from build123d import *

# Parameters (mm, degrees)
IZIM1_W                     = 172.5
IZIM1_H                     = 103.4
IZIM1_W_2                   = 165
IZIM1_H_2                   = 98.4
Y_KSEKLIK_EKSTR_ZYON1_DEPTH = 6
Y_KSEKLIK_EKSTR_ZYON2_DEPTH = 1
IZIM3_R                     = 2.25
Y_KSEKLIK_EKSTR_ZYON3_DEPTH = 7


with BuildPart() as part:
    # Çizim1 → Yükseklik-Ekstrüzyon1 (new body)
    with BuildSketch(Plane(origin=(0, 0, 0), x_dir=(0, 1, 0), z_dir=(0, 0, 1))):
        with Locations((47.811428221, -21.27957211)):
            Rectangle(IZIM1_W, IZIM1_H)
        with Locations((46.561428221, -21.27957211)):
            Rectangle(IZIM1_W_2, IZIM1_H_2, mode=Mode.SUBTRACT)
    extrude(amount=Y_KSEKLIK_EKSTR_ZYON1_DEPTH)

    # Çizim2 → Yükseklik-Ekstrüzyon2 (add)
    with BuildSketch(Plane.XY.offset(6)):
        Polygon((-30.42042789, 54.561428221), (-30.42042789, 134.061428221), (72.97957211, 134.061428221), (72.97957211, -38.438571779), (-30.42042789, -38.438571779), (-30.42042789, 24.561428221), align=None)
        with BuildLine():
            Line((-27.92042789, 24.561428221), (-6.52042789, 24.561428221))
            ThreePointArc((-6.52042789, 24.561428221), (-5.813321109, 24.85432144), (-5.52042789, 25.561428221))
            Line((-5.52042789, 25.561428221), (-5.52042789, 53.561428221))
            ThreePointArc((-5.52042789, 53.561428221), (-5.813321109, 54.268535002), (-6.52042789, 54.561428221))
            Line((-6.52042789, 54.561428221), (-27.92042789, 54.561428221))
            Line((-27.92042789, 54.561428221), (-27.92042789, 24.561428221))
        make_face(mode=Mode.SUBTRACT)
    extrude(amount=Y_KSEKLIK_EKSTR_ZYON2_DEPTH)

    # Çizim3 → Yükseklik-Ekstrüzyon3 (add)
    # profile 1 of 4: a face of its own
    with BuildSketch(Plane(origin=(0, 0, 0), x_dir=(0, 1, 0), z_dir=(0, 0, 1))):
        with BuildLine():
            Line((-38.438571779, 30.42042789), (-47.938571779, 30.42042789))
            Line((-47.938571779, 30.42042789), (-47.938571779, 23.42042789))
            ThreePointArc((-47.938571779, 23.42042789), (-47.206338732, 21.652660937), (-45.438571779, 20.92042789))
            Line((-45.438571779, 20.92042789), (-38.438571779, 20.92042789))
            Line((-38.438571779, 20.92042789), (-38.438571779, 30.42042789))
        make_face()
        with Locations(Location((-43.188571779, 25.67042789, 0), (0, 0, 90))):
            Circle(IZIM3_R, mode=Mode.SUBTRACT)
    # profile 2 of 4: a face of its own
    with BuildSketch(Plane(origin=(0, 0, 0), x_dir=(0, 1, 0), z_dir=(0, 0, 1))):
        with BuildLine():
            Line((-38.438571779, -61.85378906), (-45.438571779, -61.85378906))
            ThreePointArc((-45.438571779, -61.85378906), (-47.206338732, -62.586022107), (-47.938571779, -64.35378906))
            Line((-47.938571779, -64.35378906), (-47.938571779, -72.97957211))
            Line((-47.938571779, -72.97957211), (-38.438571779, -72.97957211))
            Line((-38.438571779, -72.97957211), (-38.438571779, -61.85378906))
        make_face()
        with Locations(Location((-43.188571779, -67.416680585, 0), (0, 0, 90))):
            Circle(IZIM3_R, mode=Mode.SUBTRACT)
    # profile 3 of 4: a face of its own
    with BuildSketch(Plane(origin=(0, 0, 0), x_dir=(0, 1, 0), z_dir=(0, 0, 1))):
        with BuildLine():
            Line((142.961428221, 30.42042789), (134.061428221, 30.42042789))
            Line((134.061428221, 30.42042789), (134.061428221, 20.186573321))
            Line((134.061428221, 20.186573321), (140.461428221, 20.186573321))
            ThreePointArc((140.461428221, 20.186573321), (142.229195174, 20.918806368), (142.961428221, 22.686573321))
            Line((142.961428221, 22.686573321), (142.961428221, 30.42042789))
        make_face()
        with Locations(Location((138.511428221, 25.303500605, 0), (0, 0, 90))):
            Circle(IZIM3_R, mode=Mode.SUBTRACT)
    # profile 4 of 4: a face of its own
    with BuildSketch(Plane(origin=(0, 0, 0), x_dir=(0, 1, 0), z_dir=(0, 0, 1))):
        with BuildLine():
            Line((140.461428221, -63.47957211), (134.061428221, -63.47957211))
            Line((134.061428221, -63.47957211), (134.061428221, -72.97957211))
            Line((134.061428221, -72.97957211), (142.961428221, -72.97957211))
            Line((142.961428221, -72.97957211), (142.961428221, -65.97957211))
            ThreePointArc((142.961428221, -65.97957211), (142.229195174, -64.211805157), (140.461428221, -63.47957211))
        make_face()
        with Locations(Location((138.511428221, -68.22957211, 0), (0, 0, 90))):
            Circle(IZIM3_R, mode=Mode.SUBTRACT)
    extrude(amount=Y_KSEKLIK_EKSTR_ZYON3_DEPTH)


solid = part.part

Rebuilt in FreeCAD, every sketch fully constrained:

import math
import FreeCAD as App
import Part
import Sketcher
from FreeCAD import Vector


def add_polygon(sketch, points):
    """Adds a closed chain of lines whose ends are joined by coincident constraints."""
    first, n = sketch.GeometryCount, len(points)
    for a, b in zip(points, points[1:] + points[:1]):
        sketch.addGeometry(Part.LineSegment(App.Vector(*a, 0), App.Vector(*b, 0)), False)
    for i in range(n):
        sketch.addConstraint(Sketcher.Constraint("Coincident", first + i, 2, first + (i + 1) % n, 1))

doc = App.newDocument("Part")
body = doc.addObject("PartDesign::Body", "Body")

sketch1 = body.newObject("Sketcher::SketchObject", "Sketch")
sketch1.AttachmentSupport = (doc.getObject("XY_Plane"), [""])
sketch1.MapMode = "FlatFace"
add_polygon(sketch1, [(-30.420428, -38.438572), (72.979572, -38.438572), (72.979572, 134.061428), (-30.420428, 134.061428)])
add_polygon(sketch1, [(70.479572, 129.061428), (70.479572, -35.938572), (-27.920428, -35.938572), (-27.920428, 129.061428)])
sketch1.addConstraint([
    Sketcher.Constraint("Horizontal", 0),
    Sketcher.Constraint("Vertical", 1),
    Sketcher.Constraint("Horizontal", 2),
    Sketcher.Constraint("Vertical", 3),
    Sketcher.Constraint("Vertical", 4),
    Sketcher.Constraint("Horizontal", 5),
    Sketcher.Constraint("Vertical", 6),
    Sketcher.Constraint("Horizontal", 7),
    Sketcher.Constraint("DistanceY", 4, 2, 4, 1, 165.0),
    Sketcher.Constraint("DistanceX", 0, 1, 0, 2, 103.4),
    Sketcher.Constraint("DistanceX", 5, 2, 5, 1, 98.4),
    Sketcher.Constraint("DistanceY", 1, 1, 1, 2, 172.5),
    Sketcher.Constraint("DistanceY", 4, 2, 1, 2, 170.0),
    Sketcher.Constraint("DistanceX", 4, 2, 0, 2, 2.5),
    Sketcher.Constraint("DistanceY", 0, 2, -1, 1, 38.438572),
    Sketcher.Constraint("DistanceX", -1, 1, 0, 2, 72.979572),
])
pad1 = body.newObject("PartDesign::Pad", "Pad")
pad1.Profile = sketch1
pad1.Length = 6

sketch2 = body.newObject("Sketcher::SketchObject", "Sketch001")
sketch2.AttachmentSupport = (doc.getObject("XY_Plane"), [""])
sketch2.MapMode = "FlatFace"
sketch2.AttachmentOffset = App.Placement(Vector(0, 0, 6), App.Rotation())
add_polygon(sketch2, [(-30.420428, 134.061428), (-30.420428, -38.438572), (72.979572, -38.438572), (72.979572, 134.061428)])
sketch2.addGeometry(Part.LineSegment(Vector(-27.920428, 24.561428, 0), Vector(-27.920428, 54.561428, 0)), False)
sketch2.addGeometry(Part.LineSegment(Vector(-27.920428, 54.561428, 0), Vector(-6.520428, 54.561428, 0)), False)
sketch2.addGeometry(Part.ArcOfCircle(Part.Circle(Vector(-6.520428, 53.561428, 0), Vector(0, 0, 1), 1), math.radians(0), math.radians(90)), False)
sketch2.addGeometry(Part.LineSegment(Vector(-5.520428, 53.561428, 0), Vector(-5.520428, 25.561428, 0)), False)
sketch2.addGeometry(Part.ArcOfCircle(Part.Circle(Vector(-6.520428, 25.561428, 0), Vector(0, 0, 1), 1), math.radians(-90), math.radians(0)), False)
sketch2.addGeometry(Part.LineSegment(Vector(-6.520428, 24.561428, 0), Vector(-27.920428, 24.561428, 0)), False)
sketch2.addConstraint([
    Sketcher.Constraint("Coincident", 4, 2, 5, 1),
    Sketcher.Constraint("Tangent", 5, 2, 6, 2),
    Sketcher.Constraint("Tangent", 6, 1, 7, 1),
    Sketcher.Constraint("Tangent", 7, 2, 8, 2),
    Sketcher.Constraint("Tangent", 8, 1, 9, 1),
    Sketcher.Constraint("Coincident", 9, 2, 4, 1),
    Sketcher.Constraint("Vertical", 0),
    Sketcher.Constraint("Horizontal", 1),
    Sketcher.Constraint("Vertical", 2),
    Sketcher.Constraint("Horizontal", 3),
    Sketcher.Constraint("Vertical", 4),
    Sketcher.Constraint("Horizontal", 5),
    Sketcher.Constraint("Vertical", 7),
    Sketcher.Constraint("Horizontal", 9),
    Sketcher.Constraint("Equal", 6, 8),
    Sketcher.Constraint("Radius", 6, 1.0),
    Sketcher.Constraint("DistanceY", 4, 1, 4, 2, 30.0),
    Sketcher.Constraint("DistanceX", 1, 1, 1, 2, 103.4),
    Sketcher.Constraint("DistanceX", 5, 1, 5, 2, 21.4),
    Sketcher.Constraint("DistanceY", 0, 2, 0, 1, 172.5),
    Sketcher.Constraint("DistanceY", 0, 2, 8, 3, 64.0),
    Sketcher.Constraint("DistanceX", 0, 2, 8, 3, 23.9),
    Sketcher.Constraint("DistanceY", -1, 1, 6, 3, 53.561428),
    Sketcher.Constraint("DistanceX", 6, 3, -1, 1, 6.520428),
])
pad2 = body.newObject("PartDesign::Pad", "Pad001")
pad2.Profile = sketch2
pad2.Length = 1

sketch3 = body.newObject("Sketcher::SketchObject", "Sketch002")
sketch3.AttachmentSupport = (doc.getObject("XY_Plane"), [""])
sketch3.MapMode = "FlatFace"
sketch3.addGeometry([
    Part.LineSegment(Vector(-30.420428, -38.438572, 0), Vector(-30.420428, -47.938572, 0)),
    Part.LineSegment(Vector(-30.420428, -47.938572, 0), Vector(-23.420428, -47.938572, 0)),
    Part.ArcOfCircle(Part.Circle(Vector(-23.420428, -45.438572, 0), Vector(0, 0, 1), 2.5), math.radians(-90), math.radians(0)),
    Part.LineSegment(Vector(-20.920428, -45.438572, 0), Vector(-20.920428, -38.438572, 0)),
    Part.LineSegment(Vector(-20.920428, -38.438572, 0), Vector(-30.420428, -38.438572, 0)),
    Part.Circle(Vector(-25.670428, -43.188572, 0), Vector(0, 0, 1), 2.25),
    Part.LineSegment(Vector(61.853789, -38.438572, 0), Vector(61.853789, -45.438572, 0)),
    Part.ArcOfCircle(Part.Circle(Vector(64.353789, -45.438572, 0), Vector(0, 0, 1), 2.5), math.radians(180), math.radians(270)),
    Part.LineSegment(Vector(64.353789, -47.938572, 0), Vector(72.979572, -47.938572, 0)),
    Part.LineSegment(Vector(72.979572, -47.938572, 0), Vector(72.979572, -38.438572, 0)),
    Part.LineSegment(Vector(72.979572, -38.438572, 0), Vector(61.853789, -38.438572, 0)),
    Part.Circle(Vector(67.416681, -43.188572, 0), Vector(0, 0, 1), 2.25),
    Part.LineSegment(Vector(-30.420428, 142.961428, 0), Vector(-30.420428, 134.061428, 0)),
    Part.LineSegment(Vector(-30.420428, 134.061428, 0), Vector(-20.186573, 134.061428, 0)),
    Part.LineSegment(Vector(-20.186573, 134.061428, 0), Vector(-20.186573, 140.461428, 0)),
    Part.ArcOfCircle(Part.Circle(Vector(-22.686573, 140.461428, 0), Vector(0, 0, 1), 2.5), math.radians(0), math.radians(90)),
    Part.LineSegment(Vector(-22.686573, 142.961428, 0), Vector(-30.420428, 142.961428, 0)),
    Part.Circle(Vector(-25.303501, 138.511428, 0), Vector(0, 0, 1), 2.25),
    Part.LineSegment(Vector(63.479572, 140.461428, 0), Vector(63.479572, 134.061428, 0)),
    Part.LineSegment(Vector(63.479572, 134.061428, 0), Vector(72.979572, 134.061428, 0)),
    Part.LineSegment(Vector(72.979572, 134.061428, 0), Vector(72.979572, 142.961428, 0)),
    Part.LineSegment(Vector(72.979572, 142.961428, 0), Vector(65.979572, 142.961428, 0)),
    Part.ArcOfCircle(Part.Circle(Vector(65.979572, 140.461428, 0), Vector(0, 0, 1), 2.5), math.radians(90), math.radians(180)),
    Part.Circle(Vector(68.229572, 138.511428, 0), Vector(0, 0, 1), 2.25),
], False)
sketch3.addConstraint([
    Sketcher.Constraint("Coincident", 0, 2, 1, 1),
    Sketcher.Constraint("Tangent", 1, 2, 2, 1),
    Sketcher.Constraint("Tangent", 2, 2, 3, 1),
    Sketcher.Constraint("Coincident", 3, 2, 4, 1),
    Sketcher.Constraint("Coincident", 4, 2, 0, 1),
    Sketcher.Constraint("Tangent", 6, 2, 7, 1),
    Sketcher.Constraint("Tangent", 7, 2, 8, 1),
    Sketcher.Constraint("Coincident", 8, 2, 9, 1),
    Sketcher.Constraint("Coincident", 9, 2, 10, 1),
    Sketcher.Constraint("Coincident", 10, 2, 6, 1),
    Sketcher.Constraint("Coincident", 12, 2, 13, 1),
    Sketcher.Constraint("Coincident", 13, 2, 14, 1),
    Sketcher.Constraint("Tangent", 14, 2, 15, 1),
    Sketcher.Constraint("Tangent", 15, 2, 16, 1),
    Sketcher.Constraint("Coincident", 16, 2, 12, 1),
    Sketcher.Constraint("Coincident", 18, 2, 19, 1),
    Sketcher.Constraint("Coincident", 19, 2, 20, 1),
    Sketcher.Constraint("Coincident", 20, 2, 21, 1),
    Sketcher.Constraint("Tangent", 21, 2, 22, 1),
    Sketcher.Constraint("Tangent", 22, 2, 18, 1),
    Sketcher.Constraint("Vertical", 0),
    Sketcher.Constraint("Horizontal", 1),
    Sketcher.Constraint("Vertical", 3),
    Sketcher.Constraint("Horizontal", 4),
    Sketcher.Constraint("Vertical", 6),
    Sketcher.Constraint("Horizontal", 8),
    Sketcher.Constraint("Vertical", 9),
    Sketcher.Constraint("Horizontal", 10),
    Sketcher.Constraint("Vertical", 12),
    Sketcher.Constraint("Horizontal", 13),
    Sketcher.Constraint("Vertical", 14),
    Sketcher.Constraint("Horizontal", 16),
    Sketcher.Constraint("Vertical", 18),
    Sketcher.Constraint("Horizontal", 19),
    Sketcher.Constraint("Vertical", 20),
    Sketcher.Constraint("Horizontal", 21),
    Sketcher.Constraint("Equal", 2, 7),
    Sketcher.Constraint("Equal", 5, 11),
    Sketcher.Constraint("Equal", 7, 15),
    Sketcher.Constraint("Equal", 11, 17),
    Sketcher.Constraint("Equal", 15, 22),
    Sketcher.Constraint("Equal", 17, 23),
    Sketcher.Constraint("Horizontal", 2, 3, 7, 3),
    Sketcher.Constraint("Horizontal", 5, 3, 11, 3),
    Sketcher.Constraint("Horizontal", 15, 3, 22, 3),
    Sketcher.Constraint("Horizontal", 17, 3, 23, 3),
    Sketcher.Constraint("Horizontal", 4, 2, 9, 2),
    Sketcher.Constraint("Horizontal", 13, 2, 18, 2),
    Sketcher.Constraint("Vertical", 4, 2, 12, 2),
    Sketcher.Constraint("Vertical", 9, 2, 19, 2),
    Sketcher.Constraint("Equal", 4, 19),
    Sketcher.Constraint("Equal", 19, 0),
    Sketcher.Constraint("Diameter", 5, 4.5),
    Sketcher.Constraint("Radius", 2, 2.5),
    Sketcher.Constraint("DistanceX", 1, 1, 1, 2, 7.0),
    Sketcher.Constraint("DistanceY", 12, 2, 12, 1, 8.9),
    Sketcher.Constraint("DistanceY", 2, 3, 15, 3, 185.9),
    Sketcher.Constraint("DistanceY", 5, 3, 17, 3, 181.7),
    Sketcher.Constraint("DistanceX", 2, 2, 8, 2, 93.9),
    Sketcher.Constraint("DistanceX", 5, 3, 2, 3, 2.25),
    Sketcher.Constraint("DistanceY", 2, 3, 5, 3, 2.25),
    Sketcher.Constraint("DistanceX", 22, 3, 23, 3, 2.25),
    Sketcher.Constraint("DistanceX", 17, 3, -1, 1, 25.303501),
    Sketcher.Constraint("DistanceX", 8, 1, 8, 2, 8.625783),
    Sketcher.Constraint("DistanceX", 13, 1, 13, 2, 10.233855),
    Sketcher.Constraint("DistanceY", 2, 3, -1, 1, 45.438572),
    Sketcher.Constraint("DistanceX", -1, 1, 7, 3, 64.353789),
    Sketcher.Constraint("DistanceX", -1, 1, 11, 3, 67.416681),
])
pad3 = body.newObject("PartDesign::Pad", "Pad002")
pad3.Profile = sketch3
pad3.Length = 7

doc.recompute()
